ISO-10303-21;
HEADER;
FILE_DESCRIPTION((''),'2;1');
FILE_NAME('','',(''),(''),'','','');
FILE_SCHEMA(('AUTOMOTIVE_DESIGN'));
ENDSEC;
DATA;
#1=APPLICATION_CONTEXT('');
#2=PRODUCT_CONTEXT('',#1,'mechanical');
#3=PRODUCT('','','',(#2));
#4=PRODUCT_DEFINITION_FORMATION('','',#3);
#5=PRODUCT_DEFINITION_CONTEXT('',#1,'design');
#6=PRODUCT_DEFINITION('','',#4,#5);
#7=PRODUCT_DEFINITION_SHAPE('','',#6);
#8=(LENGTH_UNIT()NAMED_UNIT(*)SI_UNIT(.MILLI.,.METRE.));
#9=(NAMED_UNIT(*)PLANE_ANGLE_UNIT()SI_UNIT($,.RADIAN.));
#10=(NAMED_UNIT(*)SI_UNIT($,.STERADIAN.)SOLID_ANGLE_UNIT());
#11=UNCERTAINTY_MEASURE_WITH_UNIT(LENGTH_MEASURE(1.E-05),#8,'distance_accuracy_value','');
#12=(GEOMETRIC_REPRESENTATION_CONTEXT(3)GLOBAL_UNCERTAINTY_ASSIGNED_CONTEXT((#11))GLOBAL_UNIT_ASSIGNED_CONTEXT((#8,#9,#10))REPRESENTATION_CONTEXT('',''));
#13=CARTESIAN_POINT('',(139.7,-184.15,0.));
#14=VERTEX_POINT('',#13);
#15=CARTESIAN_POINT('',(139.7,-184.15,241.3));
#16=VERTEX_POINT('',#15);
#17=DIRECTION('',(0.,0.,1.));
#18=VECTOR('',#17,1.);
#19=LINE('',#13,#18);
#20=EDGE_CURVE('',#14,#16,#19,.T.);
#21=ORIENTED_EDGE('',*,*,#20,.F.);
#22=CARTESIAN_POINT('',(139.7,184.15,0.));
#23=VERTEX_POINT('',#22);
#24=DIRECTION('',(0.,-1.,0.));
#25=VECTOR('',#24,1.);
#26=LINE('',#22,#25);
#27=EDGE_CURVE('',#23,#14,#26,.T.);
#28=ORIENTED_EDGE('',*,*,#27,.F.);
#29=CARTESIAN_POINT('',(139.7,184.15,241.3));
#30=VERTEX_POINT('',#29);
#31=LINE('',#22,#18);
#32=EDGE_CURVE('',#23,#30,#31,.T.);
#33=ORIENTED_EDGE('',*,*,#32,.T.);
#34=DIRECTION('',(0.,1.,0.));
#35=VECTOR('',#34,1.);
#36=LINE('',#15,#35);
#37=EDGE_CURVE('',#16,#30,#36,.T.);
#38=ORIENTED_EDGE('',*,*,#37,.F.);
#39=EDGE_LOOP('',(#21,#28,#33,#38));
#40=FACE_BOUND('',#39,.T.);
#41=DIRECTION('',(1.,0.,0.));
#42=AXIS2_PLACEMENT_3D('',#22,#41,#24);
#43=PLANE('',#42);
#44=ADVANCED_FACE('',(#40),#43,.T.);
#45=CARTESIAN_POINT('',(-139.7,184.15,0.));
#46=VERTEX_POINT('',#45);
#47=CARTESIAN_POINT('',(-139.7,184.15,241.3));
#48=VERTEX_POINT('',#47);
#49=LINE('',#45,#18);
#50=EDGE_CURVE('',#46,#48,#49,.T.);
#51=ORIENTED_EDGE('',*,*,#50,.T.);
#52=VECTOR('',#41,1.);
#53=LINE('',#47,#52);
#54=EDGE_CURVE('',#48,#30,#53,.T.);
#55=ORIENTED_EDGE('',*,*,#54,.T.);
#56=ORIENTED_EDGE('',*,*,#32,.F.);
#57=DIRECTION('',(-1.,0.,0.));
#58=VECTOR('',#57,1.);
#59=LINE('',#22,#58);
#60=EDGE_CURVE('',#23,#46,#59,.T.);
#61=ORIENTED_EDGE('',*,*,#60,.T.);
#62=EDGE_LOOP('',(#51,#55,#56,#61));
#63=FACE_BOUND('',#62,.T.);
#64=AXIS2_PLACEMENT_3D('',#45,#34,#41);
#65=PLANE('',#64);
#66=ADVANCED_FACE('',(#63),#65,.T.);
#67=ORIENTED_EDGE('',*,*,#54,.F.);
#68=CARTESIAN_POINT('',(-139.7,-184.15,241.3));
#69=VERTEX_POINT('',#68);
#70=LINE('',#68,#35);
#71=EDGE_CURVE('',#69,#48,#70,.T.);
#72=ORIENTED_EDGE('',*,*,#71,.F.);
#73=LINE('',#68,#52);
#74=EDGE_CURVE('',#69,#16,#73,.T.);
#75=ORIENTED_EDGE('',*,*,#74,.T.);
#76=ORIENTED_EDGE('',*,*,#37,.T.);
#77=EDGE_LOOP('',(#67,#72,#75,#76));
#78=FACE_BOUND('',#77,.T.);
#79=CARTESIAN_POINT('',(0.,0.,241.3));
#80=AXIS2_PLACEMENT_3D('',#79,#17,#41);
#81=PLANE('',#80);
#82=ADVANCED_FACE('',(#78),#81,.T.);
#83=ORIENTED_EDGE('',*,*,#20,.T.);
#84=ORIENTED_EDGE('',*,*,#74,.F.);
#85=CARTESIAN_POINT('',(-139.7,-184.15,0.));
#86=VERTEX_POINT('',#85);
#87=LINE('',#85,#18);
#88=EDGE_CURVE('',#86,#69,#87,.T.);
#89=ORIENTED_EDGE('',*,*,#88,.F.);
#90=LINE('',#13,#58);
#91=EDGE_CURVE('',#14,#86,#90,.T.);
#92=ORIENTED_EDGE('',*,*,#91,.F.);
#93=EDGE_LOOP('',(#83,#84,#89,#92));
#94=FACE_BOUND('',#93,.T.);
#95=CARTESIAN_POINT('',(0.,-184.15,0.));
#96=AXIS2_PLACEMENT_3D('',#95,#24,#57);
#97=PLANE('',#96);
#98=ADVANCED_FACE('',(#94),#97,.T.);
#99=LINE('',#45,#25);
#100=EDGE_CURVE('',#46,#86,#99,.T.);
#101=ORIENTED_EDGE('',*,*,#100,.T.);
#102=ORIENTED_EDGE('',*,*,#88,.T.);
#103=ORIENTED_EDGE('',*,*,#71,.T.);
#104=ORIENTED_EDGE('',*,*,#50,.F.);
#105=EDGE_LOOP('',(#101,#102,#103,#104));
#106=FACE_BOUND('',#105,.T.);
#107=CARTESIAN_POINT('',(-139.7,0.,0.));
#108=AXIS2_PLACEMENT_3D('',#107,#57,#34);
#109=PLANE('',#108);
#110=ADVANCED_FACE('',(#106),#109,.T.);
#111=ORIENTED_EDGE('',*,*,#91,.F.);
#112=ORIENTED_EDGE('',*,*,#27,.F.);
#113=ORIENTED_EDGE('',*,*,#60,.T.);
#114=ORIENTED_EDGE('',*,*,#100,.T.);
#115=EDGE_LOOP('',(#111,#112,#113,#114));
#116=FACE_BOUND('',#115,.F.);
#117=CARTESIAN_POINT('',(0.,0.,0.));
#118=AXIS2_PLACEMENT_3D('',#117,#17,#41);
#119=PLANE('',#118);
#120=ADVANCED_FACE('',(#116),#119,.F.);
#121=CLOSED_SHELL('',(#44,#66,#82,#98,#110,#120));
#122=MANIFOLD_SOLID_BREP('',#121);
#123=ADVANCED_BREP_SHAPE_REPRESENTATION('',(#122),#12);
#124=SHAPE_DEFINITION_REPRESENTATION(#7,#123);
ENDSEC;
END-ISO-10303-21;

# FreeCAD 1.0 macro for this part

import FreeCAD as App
import Part
import Sketcher

V = App.Vector
Q = App.Units.Quantity


def add_polygon(sketch, points):
    """Adds a closed chain of lines whose ends are joined by coincident constraints."""
    first, n = sketch.GeometryCount, len(points)
    for a, b in zip(points, points[1:] + points[:1]):
        sketch.addGeometry(Part.LineSegment(App.Vector(*a, 0), App.Vector(*b, 0)), False)
    for i in range(n):
        sketch.addConstraint(Sketcher.Constraint("Coincident", first + i, 2, first + (i + 1) % n, 1))

doc = App.newDocument("Part")
params = doc.addObject("Spreadsheet::Sheet", "Params")
for row, (alias, value) in enumerate([
    ("sketch1_width", "11 in"),
    ("sketch1_height", "14.5 in"),
    ("pad1_length", "9.5 in"),
], start=1):
    params.set(f"A{row}", alias)
    params.set(f"B{row}", "=" + value)
    params.setAlias(f"B{row}", alias)

body = doc.addObject("PartDesign::Body", "Body")

sketch1 = body.newObject("Sketcher::SketchObject", "Sketch")
sketch1.AttachmentSupport = (doc.getObject("XY_Plane"), [""])
sketch1.MapMode = "FlatFace"
add_polygon(sketch1, [(-140, 184), (-140, -184), (140, -184), (140, 184)])
sketch1.addConstraint(Sketcher.Constraint("Vertical", 0))
sketch1.addConstraint(Sketcher.Constraint("Horizontal", 1))
sketch1.addConstraint(Sketcher.Constraint("Vertical", 2))
sketch1.addConstraint(Sketcher.Constraint("Horizontal", 3))
sketch1.addConstraint(Sketcher.Constraint("Symmetric", 0, 2, 2, 2, -1, 1))
sketch1.addConstraint(Sketcher.Constraint("DistanceX", 1, 1, 1, 2, Q("11 in")))
sketch1.addConstraint(Sketcher.Constraint("DistanceY", 0, 2, 0, 1, Q("14.5 in")))
sketch1.setExpression("Constraints[9]", "Params.sketch1_width")
sketch1.setExpression("Constraints[10]", "Params.sketch1_height")
pad1 = body.newObject("PartDesign::Pad", "Pad")
pad1.Profile = sketch1
pad1.setExpression("Length", "Params.pad1_length")

doc.recompute()
